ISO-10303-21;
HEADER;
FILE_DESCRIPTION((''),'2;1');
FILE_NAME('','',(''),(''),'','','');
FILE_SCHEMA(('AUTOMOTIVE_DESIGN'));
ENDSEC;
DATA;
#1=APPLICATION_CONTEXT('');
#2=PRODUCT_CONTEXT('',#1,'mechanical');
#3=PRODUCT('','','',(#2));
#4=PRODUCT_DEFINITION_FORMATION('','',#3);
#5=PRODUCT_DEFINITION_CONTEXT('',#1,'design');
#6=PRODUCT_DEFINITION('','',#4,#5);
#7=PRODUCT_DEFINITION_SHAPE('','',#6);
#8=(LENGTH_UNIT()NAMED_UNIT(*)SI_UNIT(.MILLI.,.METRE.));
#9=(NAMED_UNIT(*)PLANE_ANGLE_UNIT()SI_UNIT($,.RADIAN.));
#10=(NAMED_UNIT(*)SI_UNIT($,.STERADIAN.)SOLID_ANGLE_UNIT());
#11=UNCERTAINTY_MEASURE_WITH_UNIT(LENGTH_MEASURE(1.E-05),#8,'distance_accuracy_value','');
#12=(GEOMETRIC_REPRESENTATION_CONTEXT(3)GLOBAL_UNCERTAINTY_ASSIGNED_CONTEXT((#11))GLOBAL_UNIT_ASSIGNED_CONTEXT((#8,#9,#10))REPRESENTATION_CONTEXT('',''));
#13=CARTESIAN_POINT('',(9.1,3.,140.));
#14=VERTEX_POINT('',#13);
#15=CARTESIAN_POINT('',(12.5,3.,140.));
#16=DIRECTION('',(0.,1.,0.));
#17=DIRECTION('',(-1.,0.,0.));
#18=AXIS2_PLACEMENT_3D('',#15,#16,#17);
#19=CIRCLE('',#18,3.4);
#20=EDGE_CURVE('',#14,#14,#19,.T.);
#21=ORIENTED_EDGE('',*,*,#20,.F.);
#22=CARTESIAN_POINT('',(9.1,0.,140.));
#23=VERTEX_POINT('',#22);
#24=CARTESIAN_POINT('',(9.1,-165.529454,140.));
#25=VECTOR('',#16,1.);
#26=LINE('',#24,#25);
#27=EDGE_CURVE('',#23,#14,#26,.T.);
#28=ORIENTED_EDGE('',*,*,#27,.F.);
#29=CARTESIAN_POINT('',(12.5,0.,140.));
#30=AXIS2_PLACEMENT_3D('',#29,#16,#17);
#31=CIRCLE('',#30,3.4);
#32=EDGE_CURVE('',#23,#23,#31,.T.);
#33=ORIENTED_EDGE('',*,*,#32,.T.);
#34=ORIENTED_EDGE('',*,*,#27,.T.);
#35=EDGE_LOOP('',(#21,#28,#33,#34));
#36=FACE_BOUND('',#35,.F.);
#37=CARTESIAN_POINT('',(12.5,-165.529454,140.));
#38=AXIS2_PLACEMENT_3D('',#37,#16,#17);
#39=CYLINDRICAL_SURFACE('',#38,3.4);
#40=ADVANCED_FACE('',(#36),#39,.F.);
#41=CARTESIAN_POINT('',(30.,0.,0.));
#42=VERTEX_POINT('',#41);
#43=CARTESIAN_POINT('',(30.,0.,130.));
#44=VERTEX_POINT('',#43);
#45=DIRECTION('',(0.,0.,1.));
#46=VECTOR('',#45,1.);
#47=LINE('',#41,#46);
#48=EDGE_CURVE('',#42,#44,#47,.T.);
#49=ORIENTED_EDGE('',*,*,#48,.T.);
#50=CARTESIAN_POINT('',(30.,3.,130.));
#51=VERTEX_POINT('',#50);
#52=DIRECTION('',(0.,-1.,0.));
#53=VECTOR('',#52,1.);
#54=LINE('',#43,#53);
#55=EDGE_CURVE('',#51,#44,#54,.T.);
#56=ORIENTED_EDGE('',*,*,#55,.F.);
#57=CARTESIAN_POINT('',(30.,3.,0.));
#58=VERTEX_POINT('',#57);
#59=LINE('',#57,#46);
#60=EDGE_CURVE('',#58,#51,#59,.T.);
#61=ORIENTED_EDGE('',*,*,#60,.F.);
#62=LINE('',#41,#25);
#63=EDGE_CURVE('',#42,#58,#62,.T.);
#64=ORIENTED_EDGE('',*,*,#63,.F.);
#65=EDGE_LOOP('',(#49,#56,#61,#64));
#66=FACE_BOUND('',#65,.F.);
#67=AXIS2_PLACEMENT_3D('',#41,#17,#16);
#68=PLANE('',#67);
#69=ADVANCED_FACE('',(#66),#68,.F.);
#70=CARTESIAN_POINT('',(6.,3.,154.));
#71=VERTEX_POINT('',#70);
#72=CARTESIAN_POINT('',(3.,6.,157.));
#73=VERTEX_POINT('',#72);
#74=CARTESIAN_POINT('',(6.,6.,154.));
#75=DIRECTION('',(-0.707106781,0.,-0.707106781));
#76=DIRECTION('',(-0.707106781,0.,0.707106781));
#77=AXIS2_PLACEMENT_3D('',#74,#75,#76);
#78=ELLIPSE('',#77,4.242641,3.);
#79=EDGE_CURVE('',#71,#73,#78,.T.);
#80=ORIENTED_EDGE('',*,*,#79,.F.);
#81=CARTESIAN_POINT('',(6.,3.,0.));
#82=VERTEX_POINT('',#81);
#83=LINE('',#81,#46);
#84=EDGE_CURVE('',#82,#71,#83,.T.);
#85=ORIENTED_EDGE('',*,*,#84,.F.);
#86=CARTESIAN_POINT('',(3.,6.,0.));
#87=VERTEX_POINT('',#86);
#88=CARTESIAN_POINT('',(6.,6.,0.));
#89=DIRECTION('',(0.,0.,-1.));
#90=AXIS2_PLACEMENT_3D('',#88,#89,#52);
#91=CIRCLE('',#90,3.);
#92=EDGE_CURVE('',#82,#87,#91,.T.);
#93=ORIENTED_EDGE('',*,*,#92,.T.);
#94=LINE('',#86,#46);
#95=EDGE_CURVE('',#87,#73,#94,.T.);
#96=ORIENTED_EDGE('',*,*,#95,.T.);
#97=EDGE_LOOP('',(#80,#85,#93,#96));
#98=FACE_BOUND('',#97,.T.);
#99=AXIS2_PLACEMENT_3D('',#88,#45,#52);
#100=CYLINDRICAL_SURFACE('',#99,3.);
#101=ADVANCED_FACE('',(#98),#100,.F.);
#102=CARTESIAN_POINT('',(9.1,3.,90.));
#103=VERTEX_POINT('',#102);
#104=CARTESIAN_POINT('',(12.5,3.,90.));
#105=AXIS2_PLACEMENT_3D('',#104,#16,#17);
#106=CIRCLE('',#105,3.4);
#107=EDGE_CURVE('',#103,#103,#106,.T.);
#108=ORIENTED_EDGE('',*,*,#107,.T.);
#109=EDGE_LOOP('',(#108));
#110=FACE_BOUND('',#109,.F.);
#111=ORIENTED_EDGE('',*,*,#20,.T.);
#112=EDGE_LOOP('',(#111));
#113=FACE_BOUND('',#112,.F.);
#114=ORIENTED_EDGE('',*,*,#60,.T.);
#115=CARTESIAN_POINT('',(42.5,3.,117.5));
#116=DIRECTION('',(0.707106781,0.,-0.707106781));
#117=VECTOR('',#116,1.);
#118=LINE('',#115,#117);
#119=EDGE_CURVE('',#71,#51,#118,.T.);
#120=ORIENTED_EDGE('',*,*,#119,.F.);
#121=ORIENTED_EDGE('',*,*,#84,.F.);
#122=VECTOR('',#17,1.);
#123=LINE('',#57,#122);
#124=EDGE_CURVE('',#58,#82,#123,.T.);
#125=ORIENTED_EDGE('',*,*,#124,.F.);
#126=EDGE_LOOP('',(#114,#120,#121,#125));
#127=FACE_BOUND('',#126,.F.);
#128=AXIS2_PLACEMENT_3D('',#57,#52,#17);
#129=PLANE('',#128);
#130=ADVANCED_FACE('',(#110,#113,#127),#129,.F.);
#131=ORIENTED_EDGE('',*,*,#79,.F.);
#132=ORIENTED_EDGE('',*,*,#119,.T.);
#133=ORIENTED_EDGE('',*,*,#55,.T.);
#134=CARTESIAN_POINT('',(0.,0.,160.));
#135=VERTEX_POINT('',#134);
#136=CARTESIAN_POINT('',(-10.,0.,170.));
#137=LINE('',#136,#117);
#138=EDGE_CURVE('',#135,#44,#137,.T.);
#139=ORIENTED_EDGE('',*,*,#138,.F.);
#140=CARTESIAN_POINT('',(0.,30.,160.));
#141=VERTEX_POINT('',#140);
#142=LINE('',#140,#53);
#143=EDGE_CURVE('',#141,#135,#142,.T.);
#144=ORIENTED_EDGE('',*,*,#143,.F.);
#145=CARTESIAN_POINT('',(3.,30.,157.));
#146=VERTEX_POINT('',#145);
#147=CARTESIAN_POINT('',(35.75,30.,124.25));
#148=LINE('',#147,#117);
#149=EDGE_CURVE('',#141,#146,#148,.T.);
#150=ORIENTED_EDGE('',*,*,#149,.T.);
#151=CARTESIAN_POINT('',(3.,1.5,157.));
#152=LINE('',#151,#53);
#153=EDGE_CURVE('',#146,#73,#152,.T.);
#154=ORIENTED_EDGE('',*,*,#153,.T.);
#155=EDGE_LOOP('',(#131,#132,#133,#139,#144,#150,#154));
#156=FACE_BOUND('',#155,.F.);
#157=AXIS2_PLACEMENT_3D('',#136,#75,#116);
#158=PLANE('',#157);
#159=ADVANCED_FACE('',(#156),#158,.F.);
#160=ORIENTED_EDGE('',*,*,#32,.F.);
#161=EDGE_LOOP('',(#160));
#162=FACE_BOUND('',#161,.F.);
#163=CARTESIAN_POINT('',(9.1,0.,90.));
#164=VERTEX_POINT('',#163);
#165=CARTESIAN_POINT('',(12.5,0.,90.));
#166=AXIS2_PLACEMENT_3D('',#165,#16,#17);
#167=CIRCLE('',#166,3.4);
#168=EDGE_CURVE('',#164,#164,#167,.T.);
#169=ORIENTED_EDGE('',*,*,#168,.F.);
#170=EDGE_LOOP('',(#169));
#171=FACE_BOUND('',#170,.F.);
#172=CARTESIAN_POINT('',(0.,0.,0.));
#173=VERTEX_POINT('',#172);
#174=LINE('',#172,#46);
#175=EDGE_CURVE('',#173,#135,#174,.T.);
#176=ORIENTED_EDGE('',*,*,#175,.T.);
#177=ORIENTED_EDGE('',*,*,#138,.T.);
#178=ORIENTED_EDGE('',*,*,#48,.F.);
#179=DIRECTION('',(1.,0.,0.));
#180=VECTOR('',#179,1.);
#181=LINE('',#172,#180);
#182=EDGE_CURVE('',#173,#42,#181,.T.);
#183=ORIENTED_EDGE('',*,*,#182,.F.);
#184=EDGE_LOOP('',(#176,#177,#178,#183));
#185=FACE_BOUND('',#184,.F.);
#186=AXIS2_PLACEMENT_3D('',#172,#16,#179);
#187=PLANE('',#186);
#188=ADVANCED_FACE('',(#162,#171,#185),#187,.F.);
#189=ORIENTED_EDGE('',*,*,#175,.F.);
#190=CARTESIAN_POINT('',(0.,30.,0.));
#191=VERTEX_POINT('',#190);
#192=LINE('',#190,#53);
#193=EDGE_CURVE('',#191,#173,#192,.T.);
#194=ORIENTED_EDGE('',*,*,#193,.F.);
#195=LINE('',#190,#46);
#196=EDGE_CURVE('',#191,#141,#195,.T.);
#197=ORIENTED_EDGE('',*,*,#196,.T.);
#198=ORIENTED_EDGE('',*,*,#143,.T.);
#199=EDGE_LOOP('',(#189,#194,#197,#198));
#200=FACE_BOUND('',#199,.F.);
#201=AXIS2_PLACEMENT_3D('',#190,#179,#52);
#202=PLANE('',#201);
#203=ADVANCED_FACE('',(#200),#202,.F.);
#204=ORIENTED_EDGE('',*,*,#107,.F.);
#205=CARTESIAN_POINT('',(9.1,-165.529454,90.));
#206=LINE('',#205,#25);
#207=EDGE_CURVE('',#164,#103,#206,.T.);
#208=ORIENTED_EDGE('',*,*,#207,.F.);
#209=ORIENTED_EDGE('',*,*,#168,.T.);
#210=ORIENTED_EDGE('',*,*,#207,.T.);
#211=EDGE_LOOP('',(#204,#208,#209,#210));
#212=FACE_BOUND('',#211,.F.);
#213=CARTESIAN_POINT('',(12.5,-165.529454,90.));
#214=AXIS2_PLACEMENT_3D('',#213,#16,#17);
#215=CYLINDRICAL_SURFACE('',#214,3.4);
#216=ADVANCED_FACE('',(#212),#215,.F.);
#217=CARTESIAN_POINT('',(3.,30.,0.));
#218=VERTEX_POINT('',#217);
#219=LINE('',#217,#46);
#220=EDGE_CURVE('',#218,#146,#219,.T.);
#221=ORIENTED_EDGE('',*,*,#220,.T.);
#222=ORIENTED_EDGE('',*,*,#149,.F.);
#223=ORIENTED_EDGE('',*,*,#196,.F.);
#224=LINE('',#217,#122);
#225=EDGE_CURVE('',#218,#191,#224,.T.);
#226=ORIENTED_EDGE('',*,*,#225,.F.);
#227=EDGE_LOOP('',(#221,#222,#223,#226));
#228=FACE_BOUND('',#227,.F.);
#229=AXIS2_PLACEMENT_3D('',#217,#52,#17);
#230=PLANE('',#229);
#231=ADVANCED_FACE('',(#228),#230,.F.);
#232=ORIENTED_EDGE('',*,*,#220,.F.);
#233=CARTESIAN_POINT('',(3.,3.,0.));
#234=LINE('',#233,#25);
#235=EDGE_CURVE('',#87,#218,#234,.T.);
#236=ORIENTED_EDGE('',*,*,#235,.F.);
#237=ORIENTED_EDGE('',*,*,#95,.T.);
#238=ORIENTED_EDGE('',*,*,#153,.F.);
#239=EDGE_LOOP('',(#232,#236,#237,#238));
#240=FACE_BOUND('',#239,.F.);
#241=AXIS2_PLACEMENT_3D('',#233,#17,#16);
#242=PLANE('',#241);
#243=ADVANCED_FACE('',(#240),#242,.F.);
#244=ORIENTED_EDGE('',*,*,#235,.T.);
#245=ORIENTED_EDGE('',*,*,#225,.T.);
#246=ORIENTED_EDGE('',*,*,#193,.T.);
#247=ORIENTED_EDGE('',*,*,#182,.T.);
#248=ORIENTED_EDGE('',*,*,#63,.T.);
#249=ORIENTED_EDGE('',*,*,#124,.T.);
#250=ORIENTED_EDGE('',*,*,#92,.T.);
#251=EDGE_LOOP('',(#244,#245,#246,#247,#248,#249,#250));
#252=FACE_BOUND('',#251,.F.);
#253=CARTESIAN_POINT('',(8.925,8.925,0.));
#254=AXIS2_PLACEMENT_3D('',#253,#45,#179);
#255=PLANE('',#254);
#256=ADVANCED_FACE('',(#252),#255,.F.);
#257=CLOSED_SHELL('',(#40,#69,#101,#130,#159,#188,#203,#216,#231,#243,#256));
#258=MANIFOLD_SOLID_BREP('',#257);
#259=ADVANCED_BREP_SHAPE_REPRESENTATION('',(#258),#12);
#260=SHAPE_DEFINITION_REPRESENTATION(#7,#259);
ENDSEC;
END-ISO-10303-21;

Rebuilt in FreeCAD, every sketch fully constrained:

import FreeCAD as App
import Part
import Sketcher

V = App.Vector
Q = App.Units.Quantity


def edges_at(feature, points):
    """Names of the edges that pass closest to the given points."""
    edges = feature.Shape.Edges
    near = lambda p: min(range(len(edges)), key=lambda i: edges[i].distToShape(Part.Vertex(*p))[0])
    return sorted({f"Edge{near(p) + 1}" for p in points})


def add_polygon(sketch, points):
    """Adds a closed chain of lines whose ends are joined by coincident constraints."""
    first, n = sketch.GeometryCount, len(points)
    for a, b in zip(points, points[1:] + points[:1]):
        sketch.addGeometry(Part.LineSegment(App.Vector(*a, 0), App.Vector(*b, 0)), False)
    for i in range(n):
        sketch.addConstraint(Sketcher.Constraint("Coincident", first + i, 2, first + (i + 1) % n, 1))

doc = App.newDocument("Part")
body = doc.addObject("PartDesign::Body", "Body")

# Sketch on XY plane
sketch1 = doc.addObject("Sketcher::SketchObject", "Sketch")
body.addObject(sketch1)
sketch1.AttachmentSupport = (doc.XY_Plane, [""])
sketch1.MapMode = "FlatFace"
add_polygon(sketch1, [(3, 30), (0, 30), (0, 0), (30, 0), (30, 3), (3, 3)])  # lines 0-5
sketch1.addConstraint([
    Sketcher.Constraint("Horizontal", 0),
    Sketcher.Constraint("Vertical", 1),
    Sketcher.Constraint("Horizontal", 2),
    Sketcher.Constraint("Vertical", 3),
    Sketcher.Constraint("Horizontal", 4),
    Sketcher.Constraint("Vertical", 5),
    Sketcher.Constraint("Coincident", 1, 2, -1, 1),
    Sketcher.Constraint("Equal", 2, 1),
    Sketcher.Constraint("Equal", 0, 3),
    Sketcher.Constraint("DistanceX", 0, 2, 0, 1, Q("3 mm")),
    Sketcher.Constraint("DistanceX", 2, 1, 2, 2, Q("30 mm")),
])
pad1 = doc.addObject("PartDesign::Pad", "Pad")
body.addObject(pad1)
pad1.Profile = sketch1
pad1.Length = 160
doc.recompute()

fillet = doc.addObject("PartDesign::Fillet", "Fillet")
body.addObject(fillet)
fillet.Base = (pad1, edges_at(pad1, [(3, 3, 80)]))
fillet.Radius = 3

# Sketch on XZ plane
sketch2 = doc.addObject("Sketcher::SketchObject", "Sketch001")
body.addObject(sketch2)
sketch2.AttachmentSupport = (doc.XZ_Plane, [""])
sketch2.MapMode = "FlatFace"
add_polygon(sketch2, [(40, 170), (-10, 170), (40, 120)])  # lines 0-2
sketch2.addConstraint([
    Sketcher.Constraint("Horizontal", 0),
    Sketcher.Constraint("Vertical", 2),
    Sketcher.Constraint("Equal", 0, 2),
    Sketcher.Constraint("DistanceX", 0, 2, 0, 1, Q("50 mm")),
    Sketcher.Constraint("DistanceX", 0, 2, -1, 1, Q("10 mm")),
    Sketcher.Constraint("DistanceY", -1, 1, 0, 2, Q("170 mm")),
])
pocket1 = doc.addObject("PartDesign::Pocket", "Pocket")
body.addObject(pocket1)
pocket1.Profile = sketch2
pocket1.Type = "ThroughAll"

# Sketch on XZ plane
sketch3 = doc.addObject("Sketcher::SketchObject", "Sketch002")
body.addObject(sketch3)
sketch3.AttachmentSupport = (doc.XZ_Plane, [""])
sketch3.MapMode = "FlatFace"
sketch3.addGeometry([
    Part.Circle(V(12.5, 140, 0), V(0, 0, 1), 3.4),
    Part.Circle(V(12.5, 90, 0), V(0, 0, 1), 3.4),
], False)
sketch3.addConstraint([
    Sketcher.Constraint("Equal", 0, 1),
    Sketcher.Constraint("Vertical", 0, 3, 1, 3),
    Sketcher.Constraint("Diameter", 0, Q("6.8 mm")),
    Sketcher.Constraint("DistanceY", -1, 1, 0, 3, Q("140 mm")),
    Sketcher.Constraint("DistanceY", -1, 1, 1, 3, Q("90 mm")),
    Sketcher.Constraint("DistanceX", -1, 1, 0, 3, Q("12.5 mm")),
])
doc.recompute()
hole = doc.addObject("PartDesign::Hole", "Hole")
body.addObject(hole)
hole.Profile = sketch3
hole.ThreadType = "None"
hole.Diameter = 6.8
hole.DepthType = "ThroughAll"

doc.recompute()
